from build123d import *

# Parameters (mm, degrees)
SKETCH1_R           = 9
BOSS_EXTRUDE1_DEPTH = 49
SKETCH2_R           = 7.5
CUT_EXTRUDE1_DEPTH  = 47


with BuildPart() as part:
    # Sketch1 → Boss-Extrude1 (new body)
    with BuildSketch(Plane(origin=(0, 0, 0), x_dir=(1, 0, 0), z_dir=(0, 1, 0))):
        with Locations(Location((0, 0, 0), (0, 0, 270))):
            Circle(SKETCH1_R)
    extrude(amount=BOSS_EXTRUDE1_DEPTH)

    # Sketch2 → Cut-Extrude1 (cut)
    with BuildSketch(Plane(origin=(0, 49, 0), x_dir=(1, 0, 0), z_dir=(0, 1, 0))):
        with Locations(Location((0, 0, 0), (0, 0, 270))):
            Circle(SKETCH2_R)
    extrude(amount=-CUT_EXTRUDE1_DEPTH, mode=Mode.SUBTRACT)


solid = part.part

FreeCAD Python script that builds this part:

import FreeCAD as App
import Part
import Sketcher

V = App.Vector

doc = App.newDocument("Part")
body = doc.addObject("PartDesign::Body", "Body")

sketch1 = body.newObject("Sketcher::SketchObject", "Sketch")
sketch1.AttachmentSupport = (doc.getObject("XZ_Plane"), [""])
sketch1.MapMode = "FlatFace"
sketch1.addGeometry(Part.Circle(V(0, 0, 0), V(0, 0, 1), 9), False)
sketch1.addConstraint([
    Sketcher.Constraint("Coincident", 0, 3, -1, 1),
    Sketcher.Constraint("Diameter", 0, 18.0),
])
pad1 = body.newObject("PartDesign::Pad", "Pad")
pad1.Profile = sketch1
pad1.Length = 49
pad1.Reversed = True

sketch2 = body.newObject("Sketcher::SketchObject", "Sketch001")
sketch2.AttachmentSupport = (doc.getObject("XZ_Plane"), [""])
sketch2.MapMode = "FlatFace"
sketch2.AttachmentOffset = App.Placement(V(0, 0, -49), App.Rotation())
sketch2.addGeometry(Part.Circle(V(0, 0, 0), V(0, 0, 1), 8), False)
sketch2.addConstraint([
    Sketcher.Constraint("Coincident", 0, 3, -1, 1),
    Sketcher.Constraint("Diameter", 0, 15.0),
])
pocket1 = body.newObject("PartDesign::Pocket", "Pocket")
pocket1.Profile = sketch2
pocket1.Length = 47
pocket1.Reversed = True

doc.recompute()
